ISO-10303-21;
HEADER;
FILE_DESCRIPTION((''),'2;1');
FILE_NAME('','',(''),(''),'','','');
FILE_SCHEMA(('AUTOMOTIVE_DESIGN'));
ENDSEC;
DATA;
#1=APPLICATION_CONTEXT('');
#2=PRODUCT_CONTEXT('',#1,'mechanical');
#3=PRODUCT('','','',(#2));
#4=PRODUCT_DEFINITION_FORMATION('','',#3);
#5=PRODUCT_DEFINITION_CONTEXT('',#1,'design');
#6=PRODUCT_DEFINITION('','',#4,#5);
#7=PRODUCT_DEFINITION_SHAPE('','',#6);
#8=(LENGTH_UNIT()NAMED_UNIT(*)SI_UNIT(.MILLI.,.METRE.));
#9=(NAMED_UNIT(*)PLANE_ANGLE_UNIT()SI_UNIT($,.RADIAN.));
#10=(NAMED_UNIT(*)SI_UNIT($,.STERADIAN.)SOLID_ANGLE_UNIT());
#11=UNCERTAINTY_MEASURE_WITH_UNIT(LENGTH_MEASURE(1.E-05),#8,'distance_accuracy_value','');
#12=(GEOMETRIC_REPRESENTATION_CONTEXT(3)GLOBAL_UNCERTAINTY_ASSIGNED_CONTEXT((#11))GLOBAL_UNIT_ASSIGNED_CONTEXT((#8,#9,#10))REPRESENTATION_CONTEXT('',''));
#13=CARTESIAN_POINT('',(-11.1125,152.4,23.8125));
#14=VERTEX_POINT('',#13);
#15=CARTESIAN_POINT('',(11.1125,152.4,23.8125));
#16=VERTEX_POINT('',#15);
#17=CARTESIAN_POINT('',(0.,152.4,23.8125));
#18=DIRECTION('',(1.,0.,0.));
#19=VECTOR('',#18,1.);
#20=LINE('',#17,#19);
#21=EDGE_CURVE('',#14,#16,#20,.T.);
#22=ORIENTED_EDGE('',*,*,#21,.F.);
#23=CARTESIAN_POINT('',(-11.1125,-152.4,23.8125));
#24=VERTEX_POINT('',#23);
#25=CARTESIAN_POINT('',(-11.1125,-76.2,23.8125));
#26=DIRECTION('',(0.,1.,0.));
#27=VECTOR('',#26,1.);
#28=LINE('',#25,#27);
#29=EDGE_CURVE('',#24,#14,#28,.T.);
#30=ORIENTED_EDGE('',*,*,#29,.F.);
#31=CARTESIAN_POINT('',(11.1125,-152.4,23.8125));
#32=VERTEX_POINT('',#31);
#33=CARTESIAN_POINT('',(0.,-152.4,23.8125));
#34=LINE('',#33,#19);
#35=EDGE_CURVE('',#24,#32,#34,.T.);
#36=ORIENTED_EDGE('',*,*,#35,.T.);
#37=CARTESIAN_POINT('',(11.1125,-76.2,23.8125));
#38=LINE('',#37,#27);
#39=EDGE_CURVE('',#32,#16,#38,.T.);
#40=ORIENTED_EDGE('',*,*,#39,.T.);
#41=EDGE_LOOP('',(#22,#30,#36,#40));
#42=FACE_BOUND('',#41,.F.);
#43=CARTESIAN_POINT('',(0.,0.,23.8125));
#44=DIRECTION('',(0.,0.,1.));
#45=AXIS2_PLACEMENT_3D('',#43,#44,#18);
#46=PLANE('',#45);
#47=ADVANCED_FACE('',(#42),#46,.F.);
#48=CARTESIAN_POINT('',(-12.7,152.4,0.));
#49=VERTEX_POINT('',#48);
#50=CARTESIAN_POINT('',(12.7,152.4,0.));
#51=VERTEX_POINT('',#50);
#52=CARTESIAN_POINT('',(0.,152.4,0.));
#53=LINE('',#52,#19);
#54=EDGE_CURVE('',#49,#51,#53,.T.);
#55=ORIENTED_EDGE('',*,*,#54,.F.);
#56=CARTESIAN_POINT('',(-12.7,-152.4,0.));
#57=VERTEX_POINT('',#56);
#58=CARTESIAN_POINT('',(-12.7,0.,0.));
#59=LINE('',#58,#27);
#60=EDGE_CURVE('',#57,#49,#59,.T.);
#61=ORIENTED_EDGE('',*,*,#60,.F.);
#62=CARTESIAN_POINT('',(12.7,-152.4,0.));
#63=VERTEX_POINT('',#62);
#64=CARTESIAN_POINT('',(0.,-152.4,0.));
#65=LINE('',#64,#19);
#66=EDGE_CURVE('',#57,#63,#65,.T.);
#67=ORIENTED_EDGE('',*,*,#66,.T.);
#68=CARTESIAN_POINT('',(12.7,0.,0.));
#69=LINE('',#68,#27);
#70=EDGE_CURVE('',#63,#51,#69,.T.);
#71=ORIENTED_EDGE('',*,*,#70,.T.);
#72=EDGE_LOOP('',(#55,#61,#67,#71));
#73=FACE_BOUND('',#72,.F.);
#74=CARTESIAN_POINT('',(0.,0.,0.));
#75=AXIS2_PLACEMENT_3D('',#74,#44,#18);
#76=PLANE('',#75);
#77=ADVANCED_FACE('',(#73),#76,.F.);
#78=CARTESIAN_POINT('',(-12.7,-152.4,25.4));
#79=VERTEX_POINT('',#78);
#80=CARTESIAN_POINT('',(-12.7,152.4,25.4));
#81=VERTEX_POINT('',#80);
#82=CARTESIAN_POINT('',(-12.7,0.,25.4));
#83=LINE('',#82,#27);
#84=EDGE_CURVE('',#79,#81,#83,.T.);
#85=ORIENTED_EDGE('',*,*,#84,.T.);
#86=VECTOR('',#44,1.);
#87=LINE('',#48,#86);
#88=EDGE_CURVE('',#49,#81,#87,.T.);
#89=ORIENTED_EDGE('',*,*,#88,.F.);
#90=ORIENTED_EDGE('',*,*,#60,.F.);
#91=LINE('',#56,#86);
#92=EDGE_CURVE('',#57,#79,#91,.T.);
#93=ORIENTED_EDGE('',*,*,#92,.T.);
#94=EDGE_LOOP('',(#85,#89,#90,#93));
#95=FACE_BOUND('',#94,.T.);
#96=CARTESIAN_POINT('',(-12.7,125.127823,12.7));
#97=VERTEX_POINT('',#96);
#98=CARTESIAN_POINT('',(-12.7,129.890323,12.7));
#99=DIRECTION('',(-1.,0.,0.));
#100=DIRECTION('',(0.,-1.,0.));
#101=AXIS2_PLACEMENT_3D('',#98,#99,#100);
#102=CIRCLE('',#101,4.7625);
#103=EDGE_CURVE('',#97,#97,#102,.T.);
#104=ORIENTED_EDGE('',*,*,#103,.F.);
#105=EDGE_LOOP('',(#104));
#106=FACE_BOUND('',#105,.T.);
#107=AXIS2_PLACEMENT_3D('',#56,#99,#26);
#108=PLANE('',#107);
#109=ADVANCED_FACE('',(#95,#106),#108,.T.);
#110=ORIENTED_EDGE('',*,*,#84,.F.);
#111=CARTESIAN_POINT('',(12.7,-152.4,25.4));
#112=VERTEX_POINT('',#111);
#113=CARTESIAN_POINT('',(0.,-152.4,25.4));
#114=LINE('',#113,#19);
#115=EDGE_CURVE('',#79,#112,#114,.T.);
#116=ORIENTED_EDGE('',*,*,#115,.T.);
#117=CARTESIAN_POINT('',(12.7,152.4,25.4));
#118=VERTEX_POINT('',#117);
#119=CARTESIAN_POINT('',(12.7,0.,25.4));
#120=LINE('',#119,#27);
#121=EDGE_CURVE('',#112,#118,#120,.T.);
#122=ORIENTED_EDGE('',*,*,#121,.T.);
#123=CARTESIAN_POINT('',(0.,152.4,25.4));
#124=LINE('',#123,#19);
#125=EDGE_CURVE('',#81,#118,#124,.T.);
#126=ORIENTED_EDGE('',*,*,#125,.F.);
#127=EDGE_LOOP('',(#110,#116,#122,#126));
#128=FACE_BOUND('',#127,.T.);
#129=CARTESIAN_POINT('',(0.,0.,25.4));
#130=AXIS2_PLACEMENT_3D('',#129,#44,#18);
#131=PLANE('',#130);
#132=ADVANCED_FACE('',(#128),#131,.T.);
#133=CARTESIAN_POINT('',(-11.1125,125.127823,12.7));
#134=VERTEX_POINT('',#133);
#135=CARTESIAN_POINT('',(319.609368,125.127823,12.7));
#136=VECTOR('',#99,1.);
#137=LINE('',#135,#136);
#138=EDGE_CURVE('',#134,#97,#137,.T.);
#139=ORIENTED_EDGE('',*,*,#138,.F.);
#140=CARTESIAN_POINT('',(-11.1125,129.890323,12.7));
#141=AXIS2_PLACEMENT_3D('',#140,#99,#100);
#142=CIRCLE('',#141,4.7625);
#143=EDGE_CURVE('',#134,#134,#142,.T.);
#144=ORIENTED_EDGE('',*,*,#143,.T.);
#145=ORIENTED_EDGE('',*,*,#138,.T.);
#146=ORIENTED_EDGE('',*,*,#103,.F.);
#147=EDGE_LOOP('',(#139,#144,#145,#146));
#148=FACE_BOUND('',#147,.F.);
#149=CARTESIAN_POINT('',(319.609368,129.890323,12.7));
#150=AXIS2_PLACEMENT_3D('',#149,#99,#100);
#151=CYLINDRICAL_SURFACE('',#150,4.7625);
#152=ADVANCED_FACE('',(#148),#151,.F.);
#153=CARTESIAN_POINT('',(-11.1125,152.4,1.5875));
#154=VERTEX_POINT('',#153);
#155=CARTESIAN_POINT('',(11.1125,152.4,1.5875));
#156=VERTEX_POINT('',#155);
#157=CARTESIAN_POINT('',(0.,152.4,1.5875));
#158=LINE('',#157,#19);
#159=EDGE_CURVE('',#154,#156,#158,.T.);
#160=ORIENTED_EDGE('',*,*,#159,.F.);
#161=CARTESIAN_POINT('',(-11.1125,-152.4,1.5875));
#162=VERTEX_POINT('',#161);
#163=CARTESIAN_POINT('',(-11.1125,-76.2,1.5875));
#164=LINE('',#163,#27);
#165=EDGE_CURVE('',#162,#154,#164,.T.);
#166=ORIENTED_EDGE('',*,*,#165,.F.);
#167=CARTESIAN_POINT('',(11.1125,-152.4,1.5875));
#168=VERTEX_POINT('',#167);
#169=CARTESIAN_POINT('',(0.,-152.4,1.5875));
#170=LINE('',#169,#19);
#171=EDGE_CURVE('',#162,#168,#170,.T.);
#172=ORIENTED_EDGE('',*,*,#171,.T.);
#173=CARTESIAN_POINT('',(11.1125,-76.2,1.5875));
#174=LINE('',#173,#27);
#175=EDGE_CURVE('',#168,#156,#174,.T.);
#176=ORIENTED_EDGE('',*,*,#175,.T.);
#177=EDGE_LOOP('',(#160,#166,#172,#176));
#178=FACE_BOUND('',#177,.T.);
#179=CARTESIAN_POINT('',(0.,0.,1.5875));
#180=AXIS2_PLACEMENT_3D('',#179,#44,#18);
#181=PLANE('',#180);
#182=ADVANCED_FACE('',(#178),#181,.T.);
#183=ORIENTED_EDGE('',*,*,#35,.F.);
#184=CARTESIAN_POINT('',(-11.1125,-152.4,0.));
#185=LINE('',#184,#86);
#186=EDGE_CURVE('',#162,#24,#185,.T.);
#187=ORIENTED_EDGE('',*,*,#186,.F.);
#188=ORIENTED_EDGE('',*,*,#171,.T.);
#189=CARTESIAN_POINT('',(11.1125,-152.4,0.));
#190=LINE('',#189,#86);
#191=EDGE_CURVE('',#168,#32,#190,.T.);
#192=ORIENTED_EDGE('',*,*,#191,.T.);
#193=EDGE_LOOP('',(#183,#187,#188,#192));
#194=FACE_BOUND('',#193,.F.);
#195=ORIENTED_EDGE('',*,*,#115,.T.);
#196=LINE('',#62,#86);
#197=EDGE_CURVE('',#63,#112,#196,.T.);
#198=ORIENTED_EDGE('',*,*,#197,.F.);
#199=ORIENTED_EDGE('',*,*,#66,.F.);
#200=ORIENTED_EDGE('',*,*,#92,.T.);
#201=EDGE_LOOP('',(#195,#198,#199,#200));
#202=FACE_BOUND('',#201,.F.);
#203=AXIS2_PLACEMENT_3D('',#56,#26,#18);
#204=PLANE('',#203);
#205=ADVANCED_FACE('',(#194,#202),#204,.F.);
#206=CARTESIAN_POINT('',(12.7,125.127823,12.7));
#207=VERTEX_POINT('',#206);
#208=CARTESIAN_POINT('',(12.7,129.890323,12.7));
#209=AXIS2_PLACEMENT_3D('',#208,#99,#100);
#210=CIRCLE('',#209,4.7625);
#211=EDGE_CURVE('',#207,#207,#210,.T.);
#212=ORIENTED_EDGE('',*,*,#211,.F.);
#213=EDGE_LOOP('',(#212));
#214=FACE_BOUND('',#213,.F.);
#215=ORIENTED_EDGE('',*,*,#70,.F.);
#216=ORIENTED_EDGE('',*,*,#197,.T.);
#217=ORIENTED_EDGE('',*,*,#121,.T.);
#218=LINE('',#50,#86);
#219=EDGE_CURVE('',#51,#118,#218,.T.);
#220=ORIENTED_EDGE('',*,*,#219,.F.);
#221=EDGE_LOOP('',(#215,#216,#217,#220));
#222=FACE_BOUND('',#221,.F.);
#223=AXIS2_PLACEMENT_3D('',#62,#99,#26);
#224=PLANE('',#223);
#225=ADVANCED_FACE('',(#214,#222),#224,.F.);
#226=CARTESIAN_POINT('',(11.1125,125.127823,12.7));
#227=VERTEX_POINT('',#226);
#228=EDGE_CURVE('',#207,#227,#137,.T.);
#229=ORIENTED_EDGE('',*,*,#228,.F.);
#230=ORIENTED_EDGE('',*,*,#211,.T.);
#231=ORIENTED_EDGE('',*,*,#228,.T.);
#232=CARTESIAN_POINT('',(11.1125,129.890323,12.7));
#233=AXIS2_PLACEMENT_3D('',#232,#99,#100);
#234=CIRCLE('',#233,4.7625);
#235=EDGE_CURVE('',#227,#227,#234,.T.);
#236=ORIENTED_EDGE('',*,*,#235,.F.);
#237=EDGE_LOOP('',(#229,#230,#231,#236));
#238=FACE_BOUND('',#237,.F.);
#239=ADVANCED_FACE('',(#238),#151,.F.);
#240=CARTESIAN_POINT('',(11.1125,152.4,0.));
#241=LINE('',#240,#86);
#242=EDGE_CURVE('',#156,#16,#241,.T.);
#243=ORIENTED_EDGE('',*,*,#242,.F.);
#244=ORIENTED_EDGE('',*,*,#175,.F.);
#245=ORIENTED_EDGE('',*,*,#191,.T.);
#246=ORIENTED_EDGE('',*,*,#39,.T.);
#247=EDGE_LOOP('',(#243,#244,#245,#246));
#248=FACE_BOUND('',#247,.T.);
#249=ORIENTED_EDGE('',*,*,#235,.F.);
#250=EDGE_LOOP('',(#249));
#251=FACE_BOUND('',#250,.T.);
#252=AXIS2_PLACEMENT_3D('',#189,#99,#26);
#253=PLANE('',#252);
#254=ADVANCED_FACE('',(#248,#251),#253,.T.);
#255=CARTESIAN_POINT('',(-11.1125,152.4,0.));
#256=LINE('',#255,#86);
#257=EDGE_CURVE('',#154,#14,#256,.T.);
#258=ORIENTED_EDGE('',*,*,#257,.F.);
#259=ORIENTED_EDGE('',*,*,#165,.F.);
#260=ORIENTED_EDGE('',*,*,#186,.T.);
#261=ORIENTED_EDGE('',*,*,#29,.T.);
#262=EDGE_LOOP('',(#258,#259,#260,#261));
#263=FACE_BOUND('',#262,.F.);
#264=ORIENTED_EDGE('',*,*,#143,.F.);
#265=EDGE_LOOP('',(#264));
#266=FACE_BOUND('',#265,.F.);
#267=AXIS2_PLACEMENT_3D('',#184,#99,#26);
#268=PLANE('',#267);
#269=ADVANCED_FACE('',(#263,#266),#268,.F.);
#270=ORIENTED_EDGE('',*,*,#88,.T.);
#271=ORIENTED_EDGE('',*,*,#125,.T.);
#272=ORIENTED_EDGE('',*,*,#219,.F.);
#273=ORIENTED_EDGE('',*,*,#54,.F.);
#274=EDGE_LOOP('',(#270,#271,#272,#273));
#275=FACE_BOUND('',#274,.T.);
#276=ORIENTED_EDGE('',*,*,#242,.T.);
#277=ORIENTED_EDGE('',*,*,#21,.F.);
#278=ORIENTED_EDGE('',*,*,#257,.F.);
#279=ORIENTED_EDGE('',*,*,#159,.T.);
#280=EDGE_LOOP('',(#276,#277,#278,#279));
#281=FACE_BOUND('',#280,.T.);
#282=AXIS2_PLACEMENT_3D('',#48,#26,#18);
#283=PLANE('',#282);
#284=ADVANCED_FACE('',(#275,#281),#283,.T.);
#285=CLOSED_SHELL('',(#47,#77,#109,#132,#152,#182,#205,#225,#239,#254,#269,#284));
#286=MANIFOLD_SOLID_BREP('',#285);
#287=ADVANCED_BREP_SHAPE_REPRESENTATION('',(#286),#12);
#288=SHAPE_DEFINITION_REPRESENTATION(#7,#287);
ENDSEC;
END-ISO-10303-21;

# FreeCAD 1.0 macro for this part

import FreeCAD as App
import Part
import Sketcher

V = App.Vector
Q = App.Units.Quantity


def faces_at(feature, points):
    """Names of the faces that lie closest to the given points."""
    faces = feature.Shape.Faces
    near = lambda p: min(range(len(faces)), key=lambda i: faces[i].distToShape(Part.Vertex(*p))[0])
    return sorted({f"Face{near(p) + 1}" for p in points})


def add_polygon(sketch, points):
    """Adds a closed chain of lines whose ends are joined by coincident constraints."""
    first, n = sketch.GeometryCount, len(points)
    for a, b in zip(points, points[1:] + points[:1]):
        sketch.addGeometry(Part.LineSegment(App.Vector(*a, 0), App.Vector(*b, 0)), False)
    for i in range(n):
        sketch.addConstraint(Sketcher.Constraint("Coincident", first + i, 2, first + (i + 1) % n, 1))

doc = App.newDocument("Part")
body = doc.addObject("PartDesign::Body", "Body")

# Sketch on XY plane
sketch1 = body.newObject("Sketcher::SketchObject", "Sketch")
sketch1.AttachmentSupport = (doc.getObject("XY_Plane"), [""])
sketch1.MapMode = "FlatFace"
add_polygon(sketch1, [(-13, 152), (-13, -152), (13, -152), (13, 152)])  # lines 0-3
sketch1.addConstraint([
    Sketcher.Constraint("Vertical", 0),
    Sketcher.Constraint("Horizontal", 1),
    Sketcher.Constraint("Vertical", 2),
    Sketcher.Constraint("Horizontal", 3),
    Sketcher.Constraint("Symmetric", 0, 2, 2, 2, -1, 1),
    Sketcher.Constraint("DistanceX", 1, 1, 1, 2, Q("1 in")),
    Sketcher.Constraint("DistanceY", 0, 2, 0, 1, Q("12 in")),
])
pad1 = body.newObject("PartDesign::Pad", "Pad")
pad1.Profile = sketch1
pad1.Length = Q("1 in")
doc.recompute()

thickness = body.newObject("PartDesign::Thickness", "Thickness")
thickness.Base = (pad1, faces_at(pad1, [(0, -152.4, 12.7), (0, 152.4, 12.7)]))
thickness.Value = Q("0.0625 in")
thickness.Reversed = True
thickness.Join = "Arc"

# Sketch on YZ plane
sketch2 = body.newObject("Sketcher::SketchObject", "Sketch001")
sketch2.AttachmentSupport = (doc.getObject("YZ_Plane"), [""])
sketch2.MapMode = "FlatFace"
sketch2.AttachmentOffset = App.Placement(V(0, 0, 0.5 * 25.4), App.Rotation())
sketch2.addGeometry(Part.Circle(V(129.9, 12.7, 0), V(0, 0, 1), 4.8), False)
sketch2.addConstraint([
    Sketcher.Constraint("Diameter", 0, Q("0.375 in")),
    Sketcher.Constraint("DistanceY", -1, 1, 0, 3, Q("0.5 in")),
    Sketcher.Constraint("DistanceX", -1, 1, 0, 3, Q("129.890323 mm")),
])
doc.recompute()
hole = body.newObject("PartDesign::Hole", "Hole")
hole.Profile = sketch2
hole.ThreadType = "None"
hole.Diameter = Q("0.375 in")
hole.DepthType = "ThroughAll"

doc.recompute()
